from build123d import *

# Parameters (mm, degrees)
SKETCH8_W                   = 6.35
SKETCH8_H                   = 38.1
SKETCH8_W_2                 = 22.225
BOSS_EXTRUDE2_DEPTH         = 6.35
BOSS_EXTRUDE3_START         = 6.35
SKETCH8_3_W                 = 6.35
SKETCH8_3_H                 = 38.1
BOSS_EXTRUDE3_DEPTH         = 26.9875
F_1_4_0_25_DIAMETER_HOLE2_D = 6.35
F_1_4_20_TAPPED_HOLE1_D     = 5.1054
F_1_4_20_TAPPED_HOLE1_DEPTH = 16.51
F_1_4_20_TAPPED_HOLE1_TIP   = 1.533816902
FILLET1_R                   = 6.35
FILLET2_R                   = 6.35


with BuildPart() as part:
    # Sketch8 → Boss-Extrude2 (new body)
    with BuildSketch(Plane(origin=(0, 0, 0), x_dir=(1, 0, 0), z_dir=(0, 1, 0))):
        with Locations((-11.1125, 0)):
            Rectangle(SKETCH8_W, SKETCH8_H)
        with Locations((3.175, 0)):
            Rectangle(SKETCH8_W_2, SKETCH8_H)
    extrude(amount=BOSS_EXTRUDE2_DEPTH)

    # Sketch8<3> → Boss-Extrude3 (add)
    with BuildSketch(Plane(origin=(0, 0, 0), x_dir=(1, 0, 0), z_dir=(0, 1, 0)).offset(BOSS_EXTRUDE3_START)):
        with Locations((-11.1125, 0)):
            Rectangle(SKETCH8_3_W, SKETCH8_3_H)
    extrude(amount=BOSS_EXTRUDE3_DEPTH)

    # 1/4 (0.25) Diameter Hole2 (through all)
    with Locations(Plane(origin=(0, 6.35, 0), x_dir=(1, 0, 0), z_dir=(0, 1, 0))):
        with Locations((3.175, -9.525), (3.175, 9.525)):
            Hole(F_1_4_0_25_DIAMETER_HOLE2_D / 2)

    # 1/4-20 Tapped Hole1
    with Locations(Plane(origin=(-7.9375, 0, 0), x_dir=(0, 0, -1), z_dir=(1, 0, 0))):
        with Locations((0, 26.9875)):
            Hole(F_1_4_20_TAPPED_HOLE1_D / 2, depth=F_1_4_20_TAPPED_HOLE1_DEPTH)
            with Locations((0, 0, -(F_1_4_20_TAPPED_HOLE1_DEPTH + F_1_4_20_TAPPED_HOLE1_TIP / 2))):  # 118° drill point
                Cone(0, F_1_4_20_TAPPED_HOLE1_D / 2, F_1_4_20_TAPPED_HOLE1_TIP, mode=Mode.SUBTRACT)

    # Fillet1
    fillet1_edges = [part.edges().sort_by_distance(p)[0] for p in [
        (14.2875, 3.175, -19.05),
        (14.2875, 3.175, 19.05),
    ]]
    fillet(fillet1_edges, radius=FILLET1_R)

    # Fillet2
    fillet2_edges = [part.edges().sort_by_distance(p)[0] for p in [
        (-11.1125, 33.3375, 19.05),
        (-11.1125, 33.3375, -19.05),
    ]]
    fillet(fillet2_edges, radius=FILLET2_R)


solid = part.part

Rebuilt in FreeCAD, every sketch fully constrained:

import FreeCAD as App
import Part
import Sketcher
Q = App.Units.Quantity


def edges_at(feature, points):
    """Names of the edges that pass closest to the given points."""
    edges = feature.Shape.Edges
    near = lambda p: min(range(len(edges)), key=lambda i: edges[i].distToShape(Part.Vertex(*p))[0])
    return sorted({f"Edge{near(p) + 1}" for p in points})

doc = App.newDocument("Part")
body = doc.addObject("PartDesign::Body", "Body")

# Sketch on XZ plane
sketch1 = body.newObject("Sketcher::SketchObject", "Sketch")
sketch1.AttachmentSupport = (doc.getObject("XZ_Plane"), [""])
sketch1.MapMode = "FlatFace"
sketch1.addGeometry([
    Part.LineSegment(App.Vector(-14.2875, -19.05, 0), App.Vector(-14.2875, 19.05, 0)),
    Part.LineSegment(App.Vector(-14.2875, 19.05, 0), App.Vector(14.2875, 19.05, 0)),
    Part.LineSegment(App.Vector(14.2875, 19.05, 0), App.Vector(14.2875, -19.05, 0)),
    Part.LineSegment(App.Vector(14.2875, -19.05, 0), App.Vector(-14.2875, -19.05, 0)),
], False)
sketch1.addConstraint([
    Sketcher.Constraint("Coincident", 0, 2, 1, 1),
    Sketcher.Constraint("Coincident", 1, 2, 2, 1),
    Sketcher.Constraint("Coincident", 2, 2, 3, 1),
    Sketcher.Constraint("Coincident", 3, 2, 0, 1),
    Sketcher.Constraint("Vertical", 0),
    Sketcher.Constraint("Horizontal", 1),
    Sketcher.Constraint("Vertical", 2),
    Sketcher.Constraint("Horizontal", 3),
    Sketcher.Constraint("Symmetric", 0, 2, 2, 2, -1, 1),
    Sketcher.Constraint("DistanceY", 0, 1, 0, 2, Q("1.5 in")),
    Sketcher.Constraint("DistanceX", 1, 1, 1, 2, Q("1.125 in")),
])
pad1 = body.newObject("PartDesign::Pad", "Pad")
pad1.Profile = sketch1
pad1.Length = Q("0.25 in")
pad1.Reversed = True

# Sketch on XZ plane
sketch2 = body.newObject("Sketcher::SketchObject", "Sketch001")
sketch2.AttachmentSupport = (doc.getObject("XZ_Plane"), [""])
sketch2.MapMode = "FlatFace"
sketch2.AttachmentOffset = App.Placement(App.Vector(0, 0, -0.25 * 25.4), App.Rotation())
sketch2.addGeometry([
    Part.LineSegment(App.Vector(-14.2875, -19.05, 0), App.Vector(-14.2875, 19.05, 0)),
    Part.LineSegment(App.Vector(-14.2875, 19.05, 0), App.Vector(-7.9375, 19.05, 0)),
    Part.LineSegment(App.Vector(-7.9375, 19.05, 0), App.Vector(-7.9375, -19.05, 0)),
    Part.LineSegment(App.Vector(-7.9375, -19.05, 0), App.Vector(-14.2875, -19.05, 0)),
], False)
sketch2.addConstraint([
    Sketcher.Constraint("Coincident", 0, 2, 1, 1),
    Sketcher.Constraint("Coincident", 1, 2, 2, 1),
    Sketcher.Constraint("Coincident", 2, 2, 3, 1),
    Sketcher.Constraint("Coincident", 3, 2, 0, 1),
    Sketcher.Constraint("Vertical", 0),
    Sketcher.Constraint("Horizontal", 1),
    Sketcher.Constraint("Vertical", 2),
    Sketcher.Constraint("Horizontal", 3),
    Sketcher.Constraint("DistanceY", 0, 1, 0, 2, Q("1.5 in")),
    Sketcher.Constraint("DistanceX", 1, 1, 1, 2, Q("0.25 in")),
    Sketcher.Constraint("DistanceY", -1, 1, 0, 2, Q("0.75 in")),
    Sketcher.Constraint("DistanceX", 0, 2, -1, 1, Q("0.5625 in")),
])
pad2 = body.newObject("PartDesign::Pad", "Pad001")
pad2.Profile = sketch2
pad2.Length = Q("1.0625 in")
pad2.Reversed = True

# Sketch on XZ plane
sketch3 = body.newObject("Sketcher::SketchObject", "Sketch002")
sketch3.AttachmentSupport = (doc.getObject("XZ_Plane"), [""])
sketch3.MapMode = "FlatFace"
sketch3.AttachmentOffset = App.Placement(App.Vector(0, 0, -0.25 * 25.4), App.Rotation())
sketch3.addGeometry([
    Part.Circle(App.Vector(3.175, 9.525, 0), App.Vector(0, 0, 1), 3.175),
    Part.Circle(App.Vector(3.175, -9.525, 0), App.Vector(0, 0, 1), 3.175),
], False)
sketch3.addConstraint([
    Sketcher.Constraint("Equal", 0, 1),
    Sketcher.Constraint("Symmetric", 0, 3, 1, 3, -1),
    Sketcher.Constraint("Diameter", 0, Q("0.25 in")),
    Sketcher.Constraint("DistanceY", 1, 3, 0, 3, Q("0.75 in")),
    Sketcher.Constraint("DistanceX", -1, 1, 0, 3, Q("0.125 in")),
])
doc.recompute()
hole = body.newObject("PartDesign::Hole", "Hole")
hole.Profile = sketch3
hole.ThreadType = "None"
hole.Diameter = Q("0.25 in")
hole.DepthType = "ThroughAll"
hole.Reversed = True

# Sketch on YZ plane
sketch4 = body.newObject("Sketcher::SketchObject", "Sketch003")
sketch4.AttachmentSupport = (doc.getObject("YZ_Plane"), [""])
sketch4.MapMode = "FlatFace"
sketch4.AttachmentOffset = App.Placement(App.Vector(0, 0, -0.3125 * 25.4), App.Rotation())
sketch4.addGeometry(Part.Circle(App.Vector(26.9875, 0, 0), App.Vector(0, 0, 1), 2.5527), False)
sketch4.addConstraint([
    Sketcher.Constraint("PointOnObject", 0, 3, -1),
    Sketcher.Constraint("Diameter", 0, Q("0.201 in")),
    Sketcher.Constraint("DistanceX", -1, 1, 0, 3, Q("1.0625 in")),
])
doc.recompute()
hole2 = body.newObject("PartDesign::Hole", "Hole001")
hole2.Profile = sketch4
hole2.ThreadType = "None"
hole2.Diameter = Q("0.201 in")
hole2.DepthType = "Dimension"
hole2.Depth = Q("0.65 in")
hole2.DrillPoint = "Angled"
hole2.DrillPointAngle = 118
doc.recompute()

fillet = body.newObject("PartDesign::Fillet", "Fillet")
fillet.Base = (hole2, edges_at(hole2, [(14.287, 3.175, -19.05), (14.287, 3.175, 19.05)]))
fillet.Radius = Q("0.25 in")
doc.recompute()

fillet2 = body.newObject("PartDesign::Fillet", "Fillet001")
fillet2.Base = (fillet, edges_at(fillet, [(-11.113, 33.337, 19.05), (-11.113, 33.337, -19.05)]))
fillet2.Radius = Q("0.25 in")

doc.recompute()
